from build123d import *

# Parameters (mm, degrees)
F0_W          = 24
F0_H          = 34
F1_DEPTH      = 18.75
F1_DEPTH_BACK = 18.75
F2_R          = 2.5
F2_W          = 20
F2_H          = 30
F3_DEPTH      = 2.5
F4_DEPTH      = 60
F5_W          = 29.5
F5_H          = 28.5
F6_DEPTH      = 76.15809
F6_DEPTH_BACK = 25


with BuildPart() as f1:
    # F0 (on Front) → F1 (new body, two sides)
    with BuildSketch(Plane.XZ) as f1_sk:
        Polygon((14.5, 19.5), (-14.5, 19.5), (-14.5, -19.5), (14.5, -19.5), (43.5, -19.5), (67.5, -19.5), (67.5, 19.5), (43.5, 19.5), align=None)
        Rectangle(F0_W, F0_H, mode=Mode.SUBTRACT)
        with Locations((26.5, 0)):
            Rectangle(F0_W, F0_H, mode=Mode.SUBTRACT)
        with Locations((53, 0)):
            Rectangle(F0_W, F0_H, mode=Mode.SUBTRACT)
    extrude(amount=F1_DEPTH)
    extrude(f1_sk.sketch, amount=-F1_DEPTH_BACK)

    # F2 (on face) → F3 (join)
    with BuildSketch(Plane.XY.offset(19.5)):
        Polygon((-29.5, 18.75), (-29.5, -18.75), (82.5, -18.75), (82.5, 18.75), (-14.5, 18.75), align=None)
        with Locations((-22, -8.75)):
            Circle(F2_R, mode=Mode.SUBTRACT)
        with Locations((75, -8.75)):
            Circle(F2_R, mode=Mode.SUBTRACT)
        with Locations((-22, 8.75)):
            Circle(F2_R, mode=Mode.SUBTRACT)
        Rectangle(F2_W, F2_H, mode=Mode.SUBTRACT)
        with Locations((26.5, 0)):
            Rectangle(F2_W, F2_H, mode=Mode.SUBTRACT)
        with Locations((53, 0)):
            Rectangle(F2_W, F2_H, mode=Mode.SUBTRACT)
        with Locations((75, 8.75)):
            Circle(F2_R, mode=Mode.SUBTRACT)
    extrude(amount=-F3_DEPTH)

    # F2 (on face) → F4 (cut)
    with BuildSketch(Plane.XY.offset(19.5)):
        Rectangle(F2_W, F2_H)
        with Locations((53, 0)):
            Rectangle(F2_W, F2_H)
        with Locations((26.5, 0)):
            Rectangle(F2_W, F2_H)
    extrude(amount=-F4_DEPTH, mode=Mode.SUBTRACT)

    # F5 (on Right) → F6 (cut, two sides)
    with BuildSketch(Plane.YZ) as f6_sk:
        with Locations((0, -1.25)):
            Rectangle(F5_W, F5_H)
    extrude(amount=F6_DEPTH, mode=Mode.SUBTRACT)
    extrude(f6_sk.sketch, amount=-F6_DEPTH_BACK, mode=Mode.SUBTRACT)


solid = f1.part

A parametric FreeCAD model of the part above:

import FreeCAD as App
import Part
import Sketcher
from FreeCAD import Vector
Q = App.Units.Quantity

doc = App.newDocument("Part")
body = doc.addObject("PartDesign::Body", "Body")

# Sketch on XZ plane
sketch1 = body.newObject("Sketcher::SketchObject", "Sketch")
sketch1.AttachmentSupport = (doc.getObject("XZ_Plane"), [""])
sketch1.MapMode = "FlatFace"
sketch1.addGeometry(Part.LineSegment(Vector(-14, 20, 0), Vector(-14, -20, 0)), False)
sketch1.addGeometry(Part.LineSegment(Vector(-14, -20, 0), Vector(68, -20, 0)), False)
sketch1.addGeometry(Part.LineSegment(Vector(68, -20, 0), Vector(68, 20, 0)), False)
sketch1.addGeometry(Part.LineSegment(Vector(68, 20, 0), Vector(-14, 20, 0)), False)
sketch1.addGeometry(Part.LineSegment(Vector(12, -17, 0), Vector(-12, -17, 0)), False)
sketch1.addGeometry(Part.LineSegment(Vector(-12, -17, 0), Vector(-12, 17, 0)), False)
sketch1.addGeometry(Part.LineSegment(Vector(-12, 17, 0), Vector(12, 17, 0)), False)
sketch1.addGeometry(Part.LineSegment(Vector(12, 17, 0), Vector(12, -17, 0)), False)
sketch1.addGeometry(Part.LineSegment(Vector(38, -17, 0), Vector(14, -17, 0)), False)
sketch1.addGeometry(Part.LineSegment(Vector(14, -17, 0), Vector(14, 17, 0)), False)
sketch1.addGeometry(Part.LineSegment(Vector(14, 17, 0), Vector(38, 17, 0)), False)
sketch1.addGeometry(Part.LineSegment(Vector(38, 17, 0), Vector(38, -17, 0)), False)
sketch1.addGeometry(Part.LineSegment(Vector(65, -17, 0), Vector(41, -17, 0)), False)
sketch1.addGeometry(Part.LineSegment(Vector(41, -17, 0), Vector(41, 17, 0)), False)
sketch1.addGeometry(Part.LineSegment(Vector(41, 17, 0), Vector(65, 17, 0)), False)
sketch1.addGeometry(Part.LineSegment(Vector(65, 17, 0), Vector(65, -17, 0)), False)
sketch1.addConstraint(Sketcher.Constraint("Coincident", 0, 2, 1, 1))
sketch1.addConstraint(Sketcher.Constraint("Coincident", 1, 2, 2, 1))
sketch1.addConstraint(Sketcher.Constraint("Coincident", 2, 2, 3, 1))
sketch1.addConstraint(Sketcher.Constraint("Coincident", 3, 2, 0, 1))
sketch1.addConstraint(Sketcher.Constraint("Coincident", 4, 2, 5, 1))
sketch1.addConstraint(Sketcher.Constraint("Coincident", 5, 2, 6, 1))
sketch1.addConstraint(Sketcher.Constraint("Coincident", 6, 2, 7, 1))
sketch1.addConstraint(Sketcher.Constraint("Coincident", 7, 2, 4, 1))
sketch1.addConstraint(Sketcher.Constraint("Coincident", 8, 2, 9, 1))
sketch1.addConstraint(Sketcher.Constraint("Coincident", 9, 2, 10, 1))
sketch1.addConstraint(Sketcher.Constraint("Coincident", 10, 2, 11, 1))
sketch1.addConstraint(Sketcher.Constraint("Coincident", 11, 2, 8, 1))
sketch1.addConstraint(Sketcher.Constraint("Coincident", 12, 2, 13, 1))
sketch1.addConstraint(Sketcher.Constraint("Coincident", 13, 2, 14, 1))
sketch1.addConstraint(Sketcher.Constraint("Coincident", 14, 2, 15, 1))
sketch1.addConstraint(Sketcher.Constraint("Coincident", 15, 2, 12, 1))
sketch1.addConstraint(Sketcher.Constraint("Vertical", 0))
sketch1.addConstraint(Sketcher.Constraint("Horizontal", 1))
sketch1.addConstraint(Sketcher.Constraint("Vertical", 2))
sketch1.addConstraint(Sketcher.Constraint("Horizontal", 3))
sketch1.addConstraint(Sketcher.Constraint("Horizontal", 4))
sketch1.addConstraint(Sketcher.Constraint("Vertical", 5))
sketch1.addConstraint(Sketcher.Constraint("Horizontal", 6))
sketch1.addConstraint(Sketcher.Constraint("Vertical", 7))
sketch1.addConstraint(Sketcher.Constraint("Horizontal", 8))
sketch1.addConstraint(Sketcher.Constraint("Vertical", 9))
sketch1.addConstraint(Sketcher.Constraint("Horizontal", 10))
sketch1.addConstraint(Sketcher.Constraint("Vertical", 11))
sketch1.addConstraint(Sketcher.Constraint("Horizontal", 12))
sketch1.addConstraint(Sketcher.Constraint("Vertical", 13))
sketch1.addConstraint(Sketcher.Constraint("Horizontal", 14))
sketch1.addConstraint(Sketcher.Constraint("Vertical", 15))
sketch1.addConstraint(Sketcher.Constraint("Symmetric", 4, 2, 6, 2, -1, 1))
sketch1.addConstraint(Sketcher.Constraint("Horizontal", 7, 2, 8, 2))
sketch1.addConstraint(Sketcher.Constraint("Horizontal", 6, 2, 9, 2))
sketch1.addConstraint(Sketcher.Constraint("Horizontal", 11, 2, 12, 2))
sketch1.addConstraint(Sketcher.Constraint("Horizontal", 10, 2, 13, 2))
sketch1.addConstraint(Sketcher.Constraint("Equal", 6, 8))
sketch1.addConstraint(Sketcher.Constraint("Equal", 10, 12))
sketch1.addConstraint(Sketcher.Constraint("DistanceX", 1, 1, 1, 2, Q("82 mm")))
sketch1.addConstraint(Sketcher.Constraint("DistanceX", 4, 2, 4, 1, Q("24 mm")))
sketch1.addConstraint(Sketcher.Constraint("DistanceY", 0, 2, 0, 1, Q("39 mm")))
sketch1.addConstraint(Sketcher.Constraint("DistanceY", 5, 1, 5, 2, Q("34 mm")))
sketch1.addConstraint(Sketcher.Constraint("DistanceX", -1, 1, 12, 2, Q("41 mm")))
sketch1.addConstraint(Sketcher.Constraint("DistanceX", 0, 2, 8, 2, Q("29 mm")))
sketch1.addConstraint(Sketcher.Constraint("DistanceX", 0, 2, -1, 1, Q("14.5 mm")))
sketch1.addConstraint(Sketcher.Constraint("DistanceY", 0, 2, -1, 1, Q("19.5 mm")))
pad1 = body.newObject("PartDesign::Pad", "Pad")
pad1.Profile = sketch1
pad1.Type = "TwoLengths"
pad1.Length = 18.75
pad1.Length2 = 18.75

# Sketch on XY plane
sketch2 = body.newObject("Sketcher::SketchObject", "Sketch001")
sketch2.AttachmentSupport = (doc.getObject("XY_Plane"), [""])
sketch2.MapMode = "FlatFace"
sketch2.AttachmentOffset = App.Placement(Vector(0, 0, 19.5), App.Rotation())
sketch2.addGeometry(Part.LineSegment(Vector(-29.5, 18.8, 0), Vector(-29.5, -18.8, 0)), False)
sketch2.addGeometry(Part.LineSegment(Vector(-29.5, -18.8, 0), Vector(82.5, -18.8, 0)), False)
sketch2.addGeometry(Part.LineSegment(Vector(82.5, -18.8, 0), Vector(82.5, 18.8, 0)), False)
sketch2.addGeometry(Part.LineSegment(Vector(82.5, 18.8, 0), Vector(-29.5, 18.8, 0)), False)
sketch2.addGeometry(Part.Circle(Vector(-22, -8.8, 0), Vector(0, 0, 1), 2.5), False)
sketch2.addGeometry(Part.Circle(Vector(75, -8.8, 0), Vector(0, 0, 1), 2.5), False)
sketch2.addGeometry(Part.LineSegment(Vector(10, -15, 0), Vector(-10, -15, 0)), False)
sketch2.addGeometry(Part.LineSegment(Vector(-10, -15, 0), Vector(-10, 15, 0)), False)
sketch2.addGeometry(Part.LineSegment(Vector(-10, 15, 0), Vector(10, 15, 0)), False)
sketch2.addGeometry(Part.LineSegment(Vector(10, 15, 0), Vector(10, -15, 0)), False)
sketch2.addGeometry(Part.Circle(Vector(-22, 8.8, 0), Vector(0, 0, 1), 2.5), False)
sketch2.addGeometry(Part.LineSegment(Vector(36.5, -15, 0), Vector(16.5, -15, 0)), False)
sketch2.addGeometry(Part.LineSegment(Vector(16.5, -15, 0), Vector(16.5, 15, 0)), False)
sketch2.addGeometry(Part.LineSegment(Vector(16.5, 15, 0), Vector(36.5, 15, 0)), False)
sketch2.addGeometry(Part.LineSegment(Vector(36.5, 15, 0), Vector(36.5, -15, 0)), False)
sketch2.addGeometry(Part.LineSegment(Vector(63, -15, 0), Vector(43, -15, 0)), False)
sketch2.addGeometry(Part.LineSegment(Vector(43, -15, 0), Vector(43, 15, 0)), False)
sketch2.addGeometry(Part.LineSegment(Vector(43, 15, 0), Vector(63, 15, 0)), False)
sketch2.addGeometry(Part.LineSegment(Vector(63, 15, 0), Vector(63, -15, 0)), False)
sketch2.addGeometry(Part.Circle(Vector(75, 8.8, 0), Vector(0, 0, 1), 2.5), False)
sketch2.addConstraint(Sketcher.Constraint("Coincident", 0, 2, 1, 1))
sketch2.addConstraint(Sketcher.Constraint("Coincident", 1, 2, 2, 1))
sketch2.addConstraint(Sketcher.Constraint("Coincident", 2, 2, 3, 1))
sketch2.addConstraint(Sketcher.Constraint("Coincident", 3, 2, 0, 1))
sketch2.addConstraint(Sketcher.Constraint("Coincident", 6, 2, 7, 1))
sketch2.addConstraint(Sketcher.Constraint("Coincident", 7, 2, 8, 1))
sketch2.addConstraint(Sketcher.Constraint("Coincident", 8, 2, 9, 1))
sketch2.addConstraint(Sketcher.Constraint("Coincident", 9, 2, 6, 1))
sketch2.addConstraint(Sketcher.Constraint("Coincident", 11, 2, 12, 1))
sketch2.addConstraint(Sketcher.Constraint("Coincident", 12, 2, 13, 1))
sketch2.addConstraint(Sketcher.Constraint("Coincident", 13, 2, 14, 1))
sketch2.addConstraint(Sketcher.Constraint("Coincident", 14, 2, 11, 1))
sketch2.addConstraint(Sketcher.Constraint("Coincident", 15, 2, 16, 1))
sketch2.addConstraint(Sketcher.Constraint("Coincident", 16, 2, 17, 1))
sketch2.addConstraint(Sketcher.Constraint("Coincident", 17, 2, 18, 1))
sketch2.addConstraint(Sketcher.Constraint("Coincident", 18, 2, 15, 1))
sketch2.addConstraint(Sketcher.Constraint("Vertical", 0))
sketch2.addConstraint(Sketcher.Constraint("Horizontal", 1))
sketch2.addConstraint(Sketcher.Constraint("Vertical", 2))
sketch2.addConstraint(Sketcher.Constraint("Horizontal", 3))
sketch2.addConstraint(Sketcher.Constraint("Horizontal", 6))
sketch2.addConstraint(Sketcher.Constraint("Vertical", 7))
sketch2.addConstraint(Sketcher.Constraint("Horizontal", 8))
sketch2.addConstraint(Sketcher.Constraint("Vertical", 9))
sketch2.addConstraint(Sketcher.Constraint("Horizontal", 11))
sketch2.addConstraint(Sketcher.Constraint("Vertical", 12))
sketch2.addConstraint(Sketcher.Constraint("Horizontal", 13))
sketch2.addConstraint(Sketcher.Constraint("Vertical", 14))
sketch2.addConstraint(Sketcher.Constraint("Horizontal", 15))
sketch2.addConstraint(Sketcher.Constraint("Vertical", 16))
sketch2.addConstraint(Sketcher.Constraint("Horizontal", 17))
sketch2.addConstraint(Sketcher.Constraint("Vertical", 18))
sketch2.addConstraint(Sketcher.Constraint("Equal", 4, 5))
sketch2.addConstraint(Sketcher.Constraint("Equal", 5, 10))
sketch2.addConstraint(Sketcher.Constraint("Equal", 10, 19))
sketch2.addConstraint(Sketcher.Constraint("Symmetric", 6, 2, 8, 2, -1, 1))
sketch2.addConstraint(Sketcher.Constraint("Symmetric", 4, 3, 10, 3, -1))
sketch2.addConstraint(Sketcher.Constraint("Symmetric", 5, 3, 19, 3, -1))
sketch2.addConstraint(Sketcher.Constraint("Horizontal", 4, 3, 5, 3))
sketch2.addConstraint(Sketcher.Constraint("Horizontal", 9, 2, 11, 2))
sketch2.addConstraint(Sketcher.Constraint("Horizontal", 8, 2, 12, 2))
sketch2.addConstraint(Sketcher.Constraint("Horizontal", 14, 2, 15, 2))
sketch2.addConstraint(Sketcher.Constraint("Horizontal", 13, 2, 16, 2))
sketch2.addConstraint(Sketcher.Constraint("Equal", 8, 11))
sketch2.addConstraint(Sketcher.Constraint("Equal", 13, 15))
sketch2.addConstraint(Sketcher.Constraint("Diameter", 4, Q("5 mm")))
sketch2.addConstraint(Sketcher.Constraint("DistanceX", 1, 1, 1, 2, Q("112 mm")))
sketch2.addConstraint(Sketcher.Constraint("DistanceX", 6, 2, 6, 1, Q("20 mm")))
sketch2.addConstraint(Sketcher.Constraint("DistanceY", 7, 1, 7, 2, Q("30 mm")))
sketch2.addConstraint(Sketcher.Constraint("DistanceY", 0, 2, 0, 1, Q("37.5 mm")))
sketch2.addConstraint(Sketcher.Constraint("DistanceX", 4, 3, -1, 1, Q("22 mm")))
sketch2.addConstraint(Sketcher.Constraint("DistanceX", -1, 1, 5, 3, Q("75 mm")))
sketch2.addConstraint(Sketcher.Constraint("DistanceX", -1, 1, 15, 2, Q("43 mm")))
sketch2.addConstraint(Sketcher.Constraint("DistanceY", 0, 2, 4, 3, Q("10 mm")))
sketch2.addConstraint(Sketcher.Constraint("DistanceY", 19, 3, 2, 2, Q("10 mm")))
sketch2.addConstraint(Sketcher.Constraint("DistanceX", 0, 2, -1, 1, Q("29.5 mm")))
sketch2.addConstraint(Sketcher.Constraint("DistanceX", -1, 1, 11, 2, Q("16.5 mm")))
pad2 = body.newObject("PartDesign::Pad", "Pad001")
pad2.Profile = sketch2
pad2.Length = 2.5
pad2.Reversed = True

# Sketch on XY plane
sketch3 = body.newObject("Sketcher::SketchObject", "Sketch002")
sketch3.AttachmentSupport = (doc.getObject("XY_Plane"), [""])
sketch3.MapMode = "FlatFace"
sketch3.AttachmentOffset = App.Placement(Vector(0, 0, 19.5), App.Rotation())
sketch3.addGeometry(Part.LineSegment(Vector(-10, 15, 0), Vector(-10, -15, 0)), False)
sketch3.addGeometry(Part.LineSegment(Vector(-10, -15, 0), Vector(10, -15, 0)), False)
sketch3.addGeometry(Part.LineSegment(Vector(10, -15, 0), Vector(10, 15, 0)), False)
sketch3.addGeometry(Part.LineSegment(Vector(10, 15, 0), Vector(-10, 15, 0)), False)
sketch3.addGeometry(Part.LineSegment(Vector(43, 15, 0), Vector(43, -15, 0)), False)
sketch3.addGeometry(Part.LineSegment(Vector(43, -15, 0), Vector(63, -15, 0)), False)
sketch3.addGeometry(Part.LineSegment(Vector(63, -15, 0), Vector(63, 15, 0)), False)
sketch3.addGeometry(Part.LineSegment(Vector(63, 15, 0), Vector(43, 15, 0)), False)
sketch3.addGeometry(Part.LineSegment(Vector(16, 15, 0), Vector(16, -15, 0)), False)
sketch3.addGeometry(Part.LineSegment(Vector(16, -15, 0), Vector(36, -15, 0)), False)
sketch3.addGeometry(Part.LineSegment(Vector(36, -15, 0), Vector(36, 15, 0)), False)
sketch3.addGeometry(Part.LineSegment(Vector(36, 15, 0), Vector(16, 15, 0)), False)
sketch3.addConstraint(Sketcher.Constraint("Coincident", 0, 2, 1, 1))
sketch3.addConstraint(Sketcher.Constraint("Coincident", 1, 2, 2, 1))
sketch3.addConstraint(Sketcher.Constraint("Coincident", 2, 2, 3, 1))
sketch3.addConstraint(Sketcher.Constraint("Coincident", 3, 2, 0, 1))
sketch3.addConstraint(Sketcher.Constraint("Coincident", 4, 2, 5, 1))
sketch3.addConstraint(Sketcher.Constraint("Coincident", 5, 2, 6, 1))
sketch3.addConstraint(Sketcher.Constraint("Coincident", 6, 2, 7, 1))
sketch3.addConstraint(Sketcher.Constraint("Coincident", 7, 2, 4, 1))
sketch3.addConstraint(Sketcher.Constraint("Coincident", 8, 2, 9, 1))
sketch3.addConstraint(Sketcher.Constraint("Coincident", 9, 2, 10, 1))
sketch3.addConstraint(Sketcher.Constraint("Coincident", 10, 2, 11, 1))
sketch3.addConstraint(Sketcher.Constraint("Coincident", 11, 2, 8, 1))
sketch3.addConstraint(Sketcher.Constraint("Vertical", 0))
sketch3.addConstraint(Sketcher.Constraint("Horizontal", 1))
sketch3.addConstraint(Sketcher.Constraint("Vertical", 2))
sketch3.addConstraint(Sketcher.Constraint("Horizontal", 3))
sketch3.addConstraint(Sketcher.Constraint("Vertical", 4))
sketch3.addConstraint(Sketcher.Constraint("Horizontal", 5))
sketch3.addConstraint(Sketcher.Constraint("Vertical", 6))
sketch3.addConstraint(Sketcher.Constraint("Horizontal", 7))
sketch3.addConstraint(Sketcher.Constraint("Vertical", 8))
sketch3.addConstraint(Sketcher.Constraint("Horizontal", 9))
sketch3.addConstraint(Sketcher.Constraint("Vertical", 10))
sketch3.addConstraint(Sketcher.Constraint("Horizontal", 11))
sketch3.addConstraint(Sketcher.Constraint("Symmetric", 0, 2, 2, 2, -1, 1))
sketch3.addConstraint(Sketcher.Constraint("Horizontal", 1, 2, 4, 2))
sketch3.addConstraint(Sketcher.Constraint("Horizontal", 3, 2, 6, 2))
sketch3.addConstraint(Sketcher.Constraint("Horizontal", 5, 2, 8, 2))
sketch3.addConstraint(Sketcher.Constraint("Horizontal", 7, 2, 10, 2))
sketch3.addConstraint(Sketcher.Constraint("Equal", 3, 5))
sketch3.addConstraint(Sketcher.Constraint("Equal", 7, 9))
sketch3.addConstraint(Sketcher.Constraint("DistanceX", 1, 1, 1, 2, Q("20 mm")))
sketch3.addConstraint(Sketcher.Constraint("DistanceY", 0, 2, 0, 1, Q("30 mm")))
sketch3.addConstraint(Sketcher.Constraint("DistanceX", -1, 1, 4, 2, Q("43 mm")))
sketch3.addConstraint(Sketcher.Constraint("DistanceX", -1, 1, 8, 2, Q("16.5 mm")))
pocket1 = body.newObject("PartDesign::Pocket", "Pocket")
pocket1.Profile = sketch3
pocket1.Length = 60

# Sketch on YZ plane
sketch4 = body.newObject("Sketcher::SketchObject", "Sketch003")
sketch4.AttachmentSupport = (doc.getObject("YZ_Plane"), [""])
sketch4.MapMode = "FlatFace"
sketch4.addGeometry(Part.LineSegment(Vector(-15, 13, 0), Vector(-15, -16, 0)), False)
sketch4.addGeometry(Part.LineSegment(Vector(-15, -16, 0), Vector(15, -16, 0)), False)
sketch4.addGeometry(Part.LineSegment(Vector(15, -16, 0), Vector(15, 13, 0)), False)
sketch4.addGeometry(Part.LineSegment(Vector(15, 13, 0), Vector(-15, 13, 0)), False)
sketch4.addConstraint(Sketcher.Constraint("Coincident", 0, 2, 1, 1))
sketch4.addConstraint(Sketcher.Constraint("Coincident", 1, 2, 2, 1))
sketch4.addConstraint(Sketcher.Constraint("Coincident", 2, 2, 3, 1))
sketch4.addConstraint(Sketcher.Constraint("Coincident", 3, 2, 0, 1))
sketch4.addConstraint(Sketcher.Constraint("Vertical", 0))
sketch4.addConstraint(Sketcher.Constraint("Horizontal", 1))
sketch4.addConstraint(Sketcher.Constraint("Vertical", 2))
sketch4.addConstraint(Sketcher.Constraint("Horizontal", 3))
sketch4.addConstraint(Sketcher.Constraint("DistanceX", 1, 1, 1, 2, Q("29.5 mm")))
sketch4.addConstraint(Sketcher.Constraint("DistanceY", 0, 2, 0, 1, Q("28.5 mm")))
sketch4.addConstraint(Sketcher.Constraint("DistanceY", -1, 1, 2, 2, Q("13 mm")))
sketch4.addConstraint(Sketcher.Constraint("DistanceX", 0, 2, -1, 1, Q("14.75 mm")))
pocket2 = body.newObject("PartDesign::Pocket", "Pocket001")
pocket2.Profile = sketch4
pocket2.Type = "ThroughAll"
pocket2.Midplane = True

doc.recompute()
